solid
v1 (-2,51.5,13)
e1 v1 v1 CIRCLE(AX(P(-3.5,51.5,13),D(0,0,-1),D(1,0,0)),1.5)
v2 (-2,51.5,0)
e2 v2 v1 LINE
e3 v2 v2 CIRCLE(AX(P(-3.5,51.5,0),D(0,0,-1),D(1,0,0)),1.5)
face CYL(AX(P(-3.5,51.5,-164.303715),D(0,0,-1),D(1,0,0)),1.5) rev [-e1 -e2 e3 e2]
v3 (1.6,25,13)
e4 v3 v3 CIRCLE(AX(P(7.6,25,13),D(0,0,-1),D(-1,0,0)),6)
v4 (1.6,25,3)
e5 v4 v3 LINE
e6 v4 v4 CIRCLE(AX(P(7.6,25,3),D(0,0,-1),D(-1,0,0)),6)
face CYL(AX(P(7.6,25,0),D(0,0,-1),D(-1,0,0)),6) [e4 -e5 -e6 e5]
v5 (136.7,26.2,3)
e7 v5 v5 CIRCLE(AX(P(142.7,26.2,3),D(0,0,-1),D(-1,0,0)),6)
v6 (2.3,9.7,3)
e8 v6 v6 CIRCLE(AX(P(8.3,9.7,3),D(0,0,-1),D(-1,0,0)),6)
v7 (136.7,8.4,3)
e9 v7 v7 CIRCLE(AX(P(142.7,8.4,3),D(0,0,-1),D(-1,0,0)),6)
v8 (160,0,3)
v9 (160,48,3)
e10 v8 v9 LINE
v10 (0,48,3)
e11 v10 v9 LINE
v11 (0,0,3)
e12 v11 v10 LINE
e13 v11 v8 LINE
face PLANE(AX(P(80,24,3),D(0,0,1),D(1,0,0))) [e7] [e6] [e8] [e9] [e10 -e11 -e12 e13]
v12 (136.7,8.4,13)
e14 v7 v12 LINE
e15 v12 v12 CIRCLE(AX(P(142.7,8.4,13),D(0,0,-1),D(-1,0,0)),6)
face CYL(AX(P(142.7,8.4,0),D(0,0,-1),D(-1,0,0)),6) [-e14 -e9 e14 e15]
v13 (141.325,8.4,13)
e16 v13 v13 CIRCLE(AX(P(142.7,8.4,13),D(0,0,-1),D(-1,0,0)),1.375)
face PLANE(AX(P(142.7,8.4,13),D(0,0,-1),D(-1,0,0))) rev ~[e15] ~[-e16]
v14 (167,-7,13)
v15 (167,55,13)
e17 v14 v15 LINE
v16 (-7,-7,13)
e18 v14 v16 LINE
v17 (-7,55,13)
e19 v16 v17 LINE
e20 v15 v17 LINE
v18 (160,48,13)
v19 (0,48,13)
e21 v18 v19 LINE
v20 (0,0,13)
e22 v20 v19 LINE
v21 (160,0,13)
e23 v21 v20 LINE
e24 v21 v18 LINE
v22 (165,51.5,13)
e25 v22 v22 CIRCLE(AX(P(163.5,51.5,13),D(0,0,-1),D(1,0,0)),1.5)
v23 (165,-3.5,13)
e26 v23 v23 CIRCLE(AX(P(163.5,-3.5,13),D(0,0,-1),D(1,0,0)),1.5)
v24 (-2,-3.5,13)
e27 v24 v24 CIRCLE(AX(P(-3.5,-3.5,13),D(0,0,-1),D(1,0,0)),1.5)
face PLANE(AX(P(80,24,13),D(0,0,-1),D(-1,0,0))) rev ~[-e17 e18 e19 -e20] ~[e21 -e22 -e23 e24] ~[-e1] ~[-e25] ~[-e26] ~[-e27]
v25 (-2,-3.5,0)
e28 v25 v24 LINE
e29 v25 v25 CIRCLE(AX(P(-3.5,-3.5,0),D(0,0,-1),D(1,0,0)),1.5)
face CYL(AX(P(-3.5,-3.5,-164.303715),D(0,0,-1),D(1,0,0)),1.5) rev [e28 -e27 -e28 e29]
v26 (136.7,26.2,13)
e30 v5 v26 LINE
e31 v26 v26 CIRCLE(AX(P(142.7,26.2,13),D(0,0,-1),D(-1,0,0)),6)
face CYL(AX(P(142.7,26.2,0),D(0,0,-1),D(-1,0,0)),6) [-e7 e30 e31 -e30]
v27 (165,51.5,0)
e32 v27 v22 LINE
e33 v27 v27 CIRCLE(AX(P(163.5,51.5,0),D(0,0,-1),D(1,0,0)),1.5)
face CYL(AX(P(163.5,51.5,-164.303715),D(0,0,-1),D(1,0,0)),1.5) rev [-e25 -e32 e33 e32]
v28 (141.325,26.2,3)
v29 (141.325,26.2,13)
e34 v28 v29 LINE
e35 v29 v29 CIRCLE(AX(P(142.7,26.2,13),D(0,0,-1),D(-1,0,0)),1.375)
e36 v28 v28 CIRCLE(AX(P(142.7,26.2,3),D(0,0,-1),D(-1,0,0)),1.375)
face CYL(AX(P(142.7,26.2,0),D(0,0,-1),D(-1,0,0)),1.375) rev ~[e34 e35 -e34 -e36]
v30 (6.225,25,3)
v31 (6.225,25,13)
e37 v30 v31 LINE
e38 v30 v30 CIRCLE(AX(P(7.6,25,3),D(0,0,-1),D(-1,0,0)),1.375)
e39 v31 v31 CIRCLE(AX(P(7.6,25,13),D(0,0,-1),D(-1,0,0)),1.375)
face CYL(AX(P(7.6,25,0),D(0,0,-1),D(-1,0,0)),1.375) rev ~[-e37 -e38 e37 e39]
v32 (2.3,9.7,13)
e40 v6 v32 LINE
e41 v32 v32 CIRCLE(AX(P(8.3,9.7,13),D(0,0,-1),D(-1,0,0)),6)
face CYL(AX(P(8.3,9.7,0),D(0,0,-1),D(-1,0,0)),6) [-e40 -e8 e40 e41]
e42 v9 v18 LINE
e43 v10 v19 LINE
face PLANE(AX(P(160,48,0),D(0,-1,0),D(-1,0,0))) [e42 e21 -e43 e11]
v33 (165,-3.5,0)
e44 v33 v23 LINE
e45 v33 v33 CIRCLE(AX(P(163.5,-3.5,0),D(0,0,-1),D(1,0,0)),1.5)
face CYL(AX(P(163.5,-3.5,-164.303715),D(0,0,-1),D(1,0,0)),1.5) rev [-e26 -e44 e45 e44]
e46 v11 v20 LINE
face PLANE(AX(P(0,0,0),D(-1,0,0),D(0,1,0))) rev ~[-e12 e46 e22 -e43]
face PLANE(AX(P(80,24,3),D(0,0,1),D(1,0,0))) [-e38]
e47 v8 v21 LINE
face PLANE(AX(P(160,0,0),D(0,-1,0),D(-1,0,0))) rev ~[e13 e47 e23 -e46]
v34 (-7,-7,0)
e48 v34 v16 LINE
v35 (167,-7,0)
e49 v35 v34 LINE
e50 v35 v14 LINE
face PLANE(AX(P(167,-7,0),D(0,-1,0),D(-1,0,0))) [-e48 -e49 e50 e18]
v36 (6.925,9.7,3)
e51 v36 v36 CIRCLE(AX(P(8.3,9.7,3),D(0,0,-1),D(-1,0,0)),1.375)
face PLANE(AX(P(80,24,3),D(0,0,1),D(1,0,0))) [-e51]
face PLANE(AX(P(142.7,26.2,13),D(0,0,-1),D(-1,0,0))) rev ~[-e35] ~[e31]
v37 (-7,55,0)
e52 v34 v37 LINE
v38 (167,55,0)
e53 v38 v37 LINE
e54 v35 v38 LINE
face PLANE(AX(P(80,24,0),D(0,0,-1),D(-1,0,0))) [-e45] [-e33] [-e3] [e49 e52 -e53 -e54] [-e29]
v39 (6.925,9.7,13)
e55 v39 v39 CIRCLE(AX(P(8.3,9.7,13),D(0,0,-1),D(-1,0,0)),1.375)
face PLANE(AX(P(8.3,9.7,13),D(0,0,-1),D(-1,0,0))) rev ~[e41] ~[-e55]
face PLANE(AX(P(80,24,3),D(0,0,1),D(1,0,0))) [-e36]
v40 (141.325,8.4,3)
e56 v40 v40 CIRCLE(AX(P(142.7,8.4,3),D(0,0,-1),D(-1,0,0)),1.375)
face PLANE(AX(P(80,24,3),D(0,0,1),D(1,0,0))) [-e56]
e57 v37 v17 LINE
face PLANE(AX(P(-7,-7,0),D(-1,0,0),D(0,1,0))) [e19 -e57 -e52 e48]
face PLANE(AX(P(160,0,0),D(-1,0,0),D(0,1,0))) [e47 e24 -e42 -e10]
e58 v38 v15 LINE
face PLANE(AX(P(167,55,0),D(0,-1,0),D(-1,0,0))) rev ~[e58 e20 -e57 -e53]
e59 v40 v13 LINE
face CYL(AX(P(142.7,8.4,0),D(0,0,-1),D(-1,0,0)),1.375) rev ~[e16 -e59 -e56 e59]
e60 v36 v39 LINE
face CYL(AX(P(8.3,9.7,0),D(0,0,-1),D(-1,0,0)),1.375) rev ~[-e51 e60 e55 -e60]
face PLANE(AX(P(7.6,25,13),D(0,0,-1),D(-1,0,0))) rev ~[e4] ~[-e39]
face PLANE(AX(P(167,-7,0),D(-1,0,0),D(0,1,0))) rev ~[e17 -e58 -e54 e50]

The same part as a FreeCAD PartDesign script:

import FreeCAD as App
import Part
import Sketcher

V = App.Vector
Q = App.Units.Quantity


def add_polygon(sketch, points):
    """Adds a closed chain of lines whose ends are joined by coincident constraints."""
    first, n = sketch.GeometryCount, len(points)
    for a, b in zip(points, points[1:] + points[:1]):
        sketch.addGeometry(Part.LineSegment(App.Vector(*a, 0), App.Vector(*b, 0)), False)
    for i in range(n):
        sketch.addConstraint(Sketcher.Constraint("Coincident", first + i, 2, first + (i + 1) % n, 1))

doc = App.newDocument("Part")
params = doc.addObject("Spreadsheet::Sheet", "Params")
for row, (alias, value) in enumerate([
    ("sketch1_width", "160 mm"),
    ("sketch1_height", "48 mm"),
    ("pad1_length", "3 mm"),
    ("sketch2_diameter", "12 mm"),
    ("sketch2_diameter2", "2.75 mm"),
    ("pad2_length", "13 mm"),
    ("sketch3_width", "174 mm"),
    ("sketch3_width2", "160 mm"),
    ("sketch3_height", "62 mm"),
    ("sketch3_height2", "48 mm"),
    ("pad3_length", "13 mm"),
    ("sketch4_diameter", "3 mm"),
], start=1):
    params.set(f"A{row}", alias)
    params.set(f"B{row}", "=" + value)
    params.setAlias(f"B{row}", alias)

body = doc.addObject("PartDesign::Body", "Body")

# Sketch on XY plane
sketch1 = body.newObject("Sketcher::SketchObject", "Sketch")
sketch1.AttachmentSupport = (doc.getObject("XY_Plane"), [""])
sketch1.MapMode = "FlatFace"
add_polygon(sketch1, [(0, 48), (0, 0), (160, 0), (160, 48)])  # lines 0-3
sketch1.addConstraint([
    Sketcher.Constraint("Vertical", 0),
    Sketcher.Constraint("Horizontal", 1),
    Sketcher.Constraint("Vertical", 2),
    Sketcher.Constraint("Horizontal", 3),
    Sketcher.Constraint("Coincident", 0, 2, -1, 1),
    Sketcher.Constraint("DistanceX", 1, 1, 1, 2, Q("160 mm")),
    Sketcher.Constraint("DistanceY", 0, 2, 0, 1, Q("48 mm")),
])
sketch1.setExpression("Constraints[9]", "Params.sketch1_width")
sketch1.setExpression("Constraints[10]", "Params.sketch1_height")
pad1 = body.newObject("PartDesign::Pad", "Pad")
pad1.Profile = sketch1
pad1.setExpression("Length", "Params.pad1_length")

# Sketch on XY plane
sketch2 = body.newObject("Sketcher::SketchObject", "Sketch001")
sketch2.AttachmentSupport = (doc.getObject("XY_Plane"), [""])
sketch2.MapMode = "FlatFace"
sketch2.addGeometry([
    Part.Circle(V(7.6, 25, 0), V(0, 0, 1), 6),  # 0
    Part.Circle(V(7.6, 25, 0), V(0, 0, 1), 1.4),  # 1
    Part.Circle(V(8.3, 9.7, 0), V(0, 0, 1), 6),  # 2
    Part.Circle(V(8.3, 9.7, 0), V(0, 0, 1), 1.4),  # 3
    Part.Circle(V(142.7, 26.2, 0), V(0, 0, 1), 6),  # 4
    Part.Circle(V(142.7, 26.2, 0), V(0, 0, 1), 1.4),  # 5
    Part.Circle(V(142.7, 8.4, 0), V(0, 0, 1), 6),  # 6
    Part.Circle(V(142.7, 8.4, 0), V(0, 0, 1), 1.4),  # 7
], False)
sketch2.addConstraint([
    Sketcher.Constraint("Coincident", 1, 3, 0, 3),
    Sketcher.Constraint("Coincident", 3, 3, 2, 3),
    Sketcher.Constraint("Coincident", 5, 3, 4, 3),
    Sketcher.Constraint("Coincident", 7, 3, 6, 3),
    Sketcher.Constraint("Equal", 0, 2),
    Sketcher.Constraint("Equal", 1, 3),
    Sketcher.Constraint("Equal", 2, 4),
    Sketcher.Constraint("Equal", 3, 5),
    Sketcher.Constraint("Equal", 4, 6),
    Sketcher.Constraint("Equal", 5, 7),
    Sketcher.Constraint("Vertical", 5, 3, 6, 3),
    Sketcher.Constraint("Diameter", 0, Q("12 mm")),
    Sketcher.Constraint("Diameter", 1, Q("2.75 mm")),
    Sketcher.Constraint("DistanceY", -1, 1, 0, 3, Q("25 mm")),
    Sketcher.Constraint("DistanceX", -1, 1, 0, 3, Q("7.6 mm")),
    Sketcher.Constraint("DistanceX", -1, 1, 2, 3, Q("8.3 mm")),
    Sketcher.Constraint("DistanceY", -1, 1, 2, 3, Q("9.7 mm")),
    Sketcher.Constraint("DistanceX", -1, 1, 4, 3, Q("142.7 mm")),
    Sketcher.Constraint("DistanceY", -1, 1, 4, 3, Q("26.2 mm")),
    Sketcher.Constraint("DistanceY", -1, 1, 6, 3, Q("8.4 mm")),
])
sketch2.setExpression("Constraints[11]", "Params.sketch2_diameter")
sketch2.setExpression("Constraints[12]", "Params.sketch2_diameter2")
pad2 = body.newObject("PartDesign::Pad", "Pad001")
pad2.Profile = sketch2
pad2.setExpression("Length", "Params.pad2_length")

# Sketch on XY plane
sketch3 = body.newObject("Sketcher::SketchObject", "Sketch002")
sketch3.AttachmentSupport = (doc.getObject("XY_Plane"), [""])
sketch3.MapMode = "FlatFace"
add_polygon(sketch3, [(167, 55), (167, -7), (-7, -7), (-7, 55)])  # lines 0-3
add_polygon(sketch3, [(0, 0), (160, 0), (160, 48), (0, 48)])  # lines 4-7
sketch3.addConstraint([
    Sketcher.Constraint("Vertical", 0),
    Sketcher.Constraint("Horizontal", 1),
    Sketcher.Constraint("Vertical", 2),
    Sketcher.Constraint("Horizontal", 3),
    Sketcher.Constraint("Horizontal", 4),
    Sketcher.Constraint("Vertical", 5),
    Sketcher.Constraint("Horizontal", 6),
    Sketcher.Constraint("Vertical", 7),
    Sketcher.Constraint("Coincident", 7, 2, -1, 1),
    Sketcher.Constraint("DistanceX", 1, 2, 1, 1, Q("174 mm")),
    Sketcher.Constraint("DistanceX", 4, 1, 4, 2, Q("160 mm")),
    Sketcher.Constraint("DistanceY", 0, 2, 0, 1, Q("62 mm")),
    Sketcher.Constraint("DistanceY", 5, 1, 5, 2, Q("48 mm")),
    Sketcher.Constraint("DistanceX", -1, 1, 0, 2, Q("167 mm")),
    Sketcher.Constraint("DistanceY", 0, 2, -1, 1, Q("7 mm")),
])
sketch3.setExpression("Constraints[17]", "Params.sketch3_width")
sketch3.setExpression("Constraints[18]", "Params.sketch3_width2")
sketch3.setExpression("Constraints[19]", "Params.sketch3_height")
sketch3.setExpression("Constraints[20]", "Params.sketch3_height2")
pad3 = body.newObject("PartDesign::Pad", "Pad002")
pad3.Profile = sketch3
pad3.setExpression("Length", "Params.pad3_length")

# Sketch on XY plane
sketch4 = body.newObject("Sketcher::SketchObject", "Sketch003")
sketch4.AttachmentSupport = (doc.getObject("XY_Plane"), [""])
sketch4.MapMode = "FlatFace"
sketch4.AttachmentOffset = App.Placement(V(0, 0, 13), App.Rotation())
sketch4.addGeometry([
    Part.Circle(V(-3.5, -3.5, 0), V(0, 0, 1), 1.5),
    Part.Circle(V(-3.5, 51.5, 0), V(0, 0, 1), 1.5),
    Part.Circle(V(163.5, -3.5, 0), V(0, 0, 1), 1.5),
    Part.Circle(V(163.5, 51.5, 0), V(0, 0, 1), 1.5),
], False)
sketch4.addConstraint([
    Sketcher.Constraint("Equal", 0, 1),
    Sketcher.Constraint("Equal", 1, 2),
    Sketcher.Constraint("Equal", 2, 3),
    Sketcher.Constraint("Horizontal", 0, 3, 2, 3),
    Sketcher.Constraint("Horizontal", 1, 3, 3, 3),
    Sketcher.Constraint("Vertical", 0, 3, 1, 3),
    Sketcher.Constraint("Vertical", 2, 3, 3, 3),
    Sketcher.Constraint("Diameter", 0, Q("3 mm")),
    Sketcher.Constraint("DistanceY", 0, 3, 1, 3, Q("55 mm")),
    Sketcher.Constraint("DistanceX", 0, 3, 2, 3, Q("167 mm")),
    Sketcher.Constraint("DistanceX", 0, 3, -1, 1, Q("3.5 mm")),
    Sketcher.Constraint("DistanceY", 0, 3, -1, 1, Q("3.5 mm")),
])
sketch4.setExpression("Constraints[7]", "Params.sketch4_diameter")
pocket1 = body.newObject("PartDesign::Pocket", "Pocket")
pocket1.Profile = sketch4
pocket1.Type = "ThroughAll"
pocket1.Midplane = True

doc.recompute()
